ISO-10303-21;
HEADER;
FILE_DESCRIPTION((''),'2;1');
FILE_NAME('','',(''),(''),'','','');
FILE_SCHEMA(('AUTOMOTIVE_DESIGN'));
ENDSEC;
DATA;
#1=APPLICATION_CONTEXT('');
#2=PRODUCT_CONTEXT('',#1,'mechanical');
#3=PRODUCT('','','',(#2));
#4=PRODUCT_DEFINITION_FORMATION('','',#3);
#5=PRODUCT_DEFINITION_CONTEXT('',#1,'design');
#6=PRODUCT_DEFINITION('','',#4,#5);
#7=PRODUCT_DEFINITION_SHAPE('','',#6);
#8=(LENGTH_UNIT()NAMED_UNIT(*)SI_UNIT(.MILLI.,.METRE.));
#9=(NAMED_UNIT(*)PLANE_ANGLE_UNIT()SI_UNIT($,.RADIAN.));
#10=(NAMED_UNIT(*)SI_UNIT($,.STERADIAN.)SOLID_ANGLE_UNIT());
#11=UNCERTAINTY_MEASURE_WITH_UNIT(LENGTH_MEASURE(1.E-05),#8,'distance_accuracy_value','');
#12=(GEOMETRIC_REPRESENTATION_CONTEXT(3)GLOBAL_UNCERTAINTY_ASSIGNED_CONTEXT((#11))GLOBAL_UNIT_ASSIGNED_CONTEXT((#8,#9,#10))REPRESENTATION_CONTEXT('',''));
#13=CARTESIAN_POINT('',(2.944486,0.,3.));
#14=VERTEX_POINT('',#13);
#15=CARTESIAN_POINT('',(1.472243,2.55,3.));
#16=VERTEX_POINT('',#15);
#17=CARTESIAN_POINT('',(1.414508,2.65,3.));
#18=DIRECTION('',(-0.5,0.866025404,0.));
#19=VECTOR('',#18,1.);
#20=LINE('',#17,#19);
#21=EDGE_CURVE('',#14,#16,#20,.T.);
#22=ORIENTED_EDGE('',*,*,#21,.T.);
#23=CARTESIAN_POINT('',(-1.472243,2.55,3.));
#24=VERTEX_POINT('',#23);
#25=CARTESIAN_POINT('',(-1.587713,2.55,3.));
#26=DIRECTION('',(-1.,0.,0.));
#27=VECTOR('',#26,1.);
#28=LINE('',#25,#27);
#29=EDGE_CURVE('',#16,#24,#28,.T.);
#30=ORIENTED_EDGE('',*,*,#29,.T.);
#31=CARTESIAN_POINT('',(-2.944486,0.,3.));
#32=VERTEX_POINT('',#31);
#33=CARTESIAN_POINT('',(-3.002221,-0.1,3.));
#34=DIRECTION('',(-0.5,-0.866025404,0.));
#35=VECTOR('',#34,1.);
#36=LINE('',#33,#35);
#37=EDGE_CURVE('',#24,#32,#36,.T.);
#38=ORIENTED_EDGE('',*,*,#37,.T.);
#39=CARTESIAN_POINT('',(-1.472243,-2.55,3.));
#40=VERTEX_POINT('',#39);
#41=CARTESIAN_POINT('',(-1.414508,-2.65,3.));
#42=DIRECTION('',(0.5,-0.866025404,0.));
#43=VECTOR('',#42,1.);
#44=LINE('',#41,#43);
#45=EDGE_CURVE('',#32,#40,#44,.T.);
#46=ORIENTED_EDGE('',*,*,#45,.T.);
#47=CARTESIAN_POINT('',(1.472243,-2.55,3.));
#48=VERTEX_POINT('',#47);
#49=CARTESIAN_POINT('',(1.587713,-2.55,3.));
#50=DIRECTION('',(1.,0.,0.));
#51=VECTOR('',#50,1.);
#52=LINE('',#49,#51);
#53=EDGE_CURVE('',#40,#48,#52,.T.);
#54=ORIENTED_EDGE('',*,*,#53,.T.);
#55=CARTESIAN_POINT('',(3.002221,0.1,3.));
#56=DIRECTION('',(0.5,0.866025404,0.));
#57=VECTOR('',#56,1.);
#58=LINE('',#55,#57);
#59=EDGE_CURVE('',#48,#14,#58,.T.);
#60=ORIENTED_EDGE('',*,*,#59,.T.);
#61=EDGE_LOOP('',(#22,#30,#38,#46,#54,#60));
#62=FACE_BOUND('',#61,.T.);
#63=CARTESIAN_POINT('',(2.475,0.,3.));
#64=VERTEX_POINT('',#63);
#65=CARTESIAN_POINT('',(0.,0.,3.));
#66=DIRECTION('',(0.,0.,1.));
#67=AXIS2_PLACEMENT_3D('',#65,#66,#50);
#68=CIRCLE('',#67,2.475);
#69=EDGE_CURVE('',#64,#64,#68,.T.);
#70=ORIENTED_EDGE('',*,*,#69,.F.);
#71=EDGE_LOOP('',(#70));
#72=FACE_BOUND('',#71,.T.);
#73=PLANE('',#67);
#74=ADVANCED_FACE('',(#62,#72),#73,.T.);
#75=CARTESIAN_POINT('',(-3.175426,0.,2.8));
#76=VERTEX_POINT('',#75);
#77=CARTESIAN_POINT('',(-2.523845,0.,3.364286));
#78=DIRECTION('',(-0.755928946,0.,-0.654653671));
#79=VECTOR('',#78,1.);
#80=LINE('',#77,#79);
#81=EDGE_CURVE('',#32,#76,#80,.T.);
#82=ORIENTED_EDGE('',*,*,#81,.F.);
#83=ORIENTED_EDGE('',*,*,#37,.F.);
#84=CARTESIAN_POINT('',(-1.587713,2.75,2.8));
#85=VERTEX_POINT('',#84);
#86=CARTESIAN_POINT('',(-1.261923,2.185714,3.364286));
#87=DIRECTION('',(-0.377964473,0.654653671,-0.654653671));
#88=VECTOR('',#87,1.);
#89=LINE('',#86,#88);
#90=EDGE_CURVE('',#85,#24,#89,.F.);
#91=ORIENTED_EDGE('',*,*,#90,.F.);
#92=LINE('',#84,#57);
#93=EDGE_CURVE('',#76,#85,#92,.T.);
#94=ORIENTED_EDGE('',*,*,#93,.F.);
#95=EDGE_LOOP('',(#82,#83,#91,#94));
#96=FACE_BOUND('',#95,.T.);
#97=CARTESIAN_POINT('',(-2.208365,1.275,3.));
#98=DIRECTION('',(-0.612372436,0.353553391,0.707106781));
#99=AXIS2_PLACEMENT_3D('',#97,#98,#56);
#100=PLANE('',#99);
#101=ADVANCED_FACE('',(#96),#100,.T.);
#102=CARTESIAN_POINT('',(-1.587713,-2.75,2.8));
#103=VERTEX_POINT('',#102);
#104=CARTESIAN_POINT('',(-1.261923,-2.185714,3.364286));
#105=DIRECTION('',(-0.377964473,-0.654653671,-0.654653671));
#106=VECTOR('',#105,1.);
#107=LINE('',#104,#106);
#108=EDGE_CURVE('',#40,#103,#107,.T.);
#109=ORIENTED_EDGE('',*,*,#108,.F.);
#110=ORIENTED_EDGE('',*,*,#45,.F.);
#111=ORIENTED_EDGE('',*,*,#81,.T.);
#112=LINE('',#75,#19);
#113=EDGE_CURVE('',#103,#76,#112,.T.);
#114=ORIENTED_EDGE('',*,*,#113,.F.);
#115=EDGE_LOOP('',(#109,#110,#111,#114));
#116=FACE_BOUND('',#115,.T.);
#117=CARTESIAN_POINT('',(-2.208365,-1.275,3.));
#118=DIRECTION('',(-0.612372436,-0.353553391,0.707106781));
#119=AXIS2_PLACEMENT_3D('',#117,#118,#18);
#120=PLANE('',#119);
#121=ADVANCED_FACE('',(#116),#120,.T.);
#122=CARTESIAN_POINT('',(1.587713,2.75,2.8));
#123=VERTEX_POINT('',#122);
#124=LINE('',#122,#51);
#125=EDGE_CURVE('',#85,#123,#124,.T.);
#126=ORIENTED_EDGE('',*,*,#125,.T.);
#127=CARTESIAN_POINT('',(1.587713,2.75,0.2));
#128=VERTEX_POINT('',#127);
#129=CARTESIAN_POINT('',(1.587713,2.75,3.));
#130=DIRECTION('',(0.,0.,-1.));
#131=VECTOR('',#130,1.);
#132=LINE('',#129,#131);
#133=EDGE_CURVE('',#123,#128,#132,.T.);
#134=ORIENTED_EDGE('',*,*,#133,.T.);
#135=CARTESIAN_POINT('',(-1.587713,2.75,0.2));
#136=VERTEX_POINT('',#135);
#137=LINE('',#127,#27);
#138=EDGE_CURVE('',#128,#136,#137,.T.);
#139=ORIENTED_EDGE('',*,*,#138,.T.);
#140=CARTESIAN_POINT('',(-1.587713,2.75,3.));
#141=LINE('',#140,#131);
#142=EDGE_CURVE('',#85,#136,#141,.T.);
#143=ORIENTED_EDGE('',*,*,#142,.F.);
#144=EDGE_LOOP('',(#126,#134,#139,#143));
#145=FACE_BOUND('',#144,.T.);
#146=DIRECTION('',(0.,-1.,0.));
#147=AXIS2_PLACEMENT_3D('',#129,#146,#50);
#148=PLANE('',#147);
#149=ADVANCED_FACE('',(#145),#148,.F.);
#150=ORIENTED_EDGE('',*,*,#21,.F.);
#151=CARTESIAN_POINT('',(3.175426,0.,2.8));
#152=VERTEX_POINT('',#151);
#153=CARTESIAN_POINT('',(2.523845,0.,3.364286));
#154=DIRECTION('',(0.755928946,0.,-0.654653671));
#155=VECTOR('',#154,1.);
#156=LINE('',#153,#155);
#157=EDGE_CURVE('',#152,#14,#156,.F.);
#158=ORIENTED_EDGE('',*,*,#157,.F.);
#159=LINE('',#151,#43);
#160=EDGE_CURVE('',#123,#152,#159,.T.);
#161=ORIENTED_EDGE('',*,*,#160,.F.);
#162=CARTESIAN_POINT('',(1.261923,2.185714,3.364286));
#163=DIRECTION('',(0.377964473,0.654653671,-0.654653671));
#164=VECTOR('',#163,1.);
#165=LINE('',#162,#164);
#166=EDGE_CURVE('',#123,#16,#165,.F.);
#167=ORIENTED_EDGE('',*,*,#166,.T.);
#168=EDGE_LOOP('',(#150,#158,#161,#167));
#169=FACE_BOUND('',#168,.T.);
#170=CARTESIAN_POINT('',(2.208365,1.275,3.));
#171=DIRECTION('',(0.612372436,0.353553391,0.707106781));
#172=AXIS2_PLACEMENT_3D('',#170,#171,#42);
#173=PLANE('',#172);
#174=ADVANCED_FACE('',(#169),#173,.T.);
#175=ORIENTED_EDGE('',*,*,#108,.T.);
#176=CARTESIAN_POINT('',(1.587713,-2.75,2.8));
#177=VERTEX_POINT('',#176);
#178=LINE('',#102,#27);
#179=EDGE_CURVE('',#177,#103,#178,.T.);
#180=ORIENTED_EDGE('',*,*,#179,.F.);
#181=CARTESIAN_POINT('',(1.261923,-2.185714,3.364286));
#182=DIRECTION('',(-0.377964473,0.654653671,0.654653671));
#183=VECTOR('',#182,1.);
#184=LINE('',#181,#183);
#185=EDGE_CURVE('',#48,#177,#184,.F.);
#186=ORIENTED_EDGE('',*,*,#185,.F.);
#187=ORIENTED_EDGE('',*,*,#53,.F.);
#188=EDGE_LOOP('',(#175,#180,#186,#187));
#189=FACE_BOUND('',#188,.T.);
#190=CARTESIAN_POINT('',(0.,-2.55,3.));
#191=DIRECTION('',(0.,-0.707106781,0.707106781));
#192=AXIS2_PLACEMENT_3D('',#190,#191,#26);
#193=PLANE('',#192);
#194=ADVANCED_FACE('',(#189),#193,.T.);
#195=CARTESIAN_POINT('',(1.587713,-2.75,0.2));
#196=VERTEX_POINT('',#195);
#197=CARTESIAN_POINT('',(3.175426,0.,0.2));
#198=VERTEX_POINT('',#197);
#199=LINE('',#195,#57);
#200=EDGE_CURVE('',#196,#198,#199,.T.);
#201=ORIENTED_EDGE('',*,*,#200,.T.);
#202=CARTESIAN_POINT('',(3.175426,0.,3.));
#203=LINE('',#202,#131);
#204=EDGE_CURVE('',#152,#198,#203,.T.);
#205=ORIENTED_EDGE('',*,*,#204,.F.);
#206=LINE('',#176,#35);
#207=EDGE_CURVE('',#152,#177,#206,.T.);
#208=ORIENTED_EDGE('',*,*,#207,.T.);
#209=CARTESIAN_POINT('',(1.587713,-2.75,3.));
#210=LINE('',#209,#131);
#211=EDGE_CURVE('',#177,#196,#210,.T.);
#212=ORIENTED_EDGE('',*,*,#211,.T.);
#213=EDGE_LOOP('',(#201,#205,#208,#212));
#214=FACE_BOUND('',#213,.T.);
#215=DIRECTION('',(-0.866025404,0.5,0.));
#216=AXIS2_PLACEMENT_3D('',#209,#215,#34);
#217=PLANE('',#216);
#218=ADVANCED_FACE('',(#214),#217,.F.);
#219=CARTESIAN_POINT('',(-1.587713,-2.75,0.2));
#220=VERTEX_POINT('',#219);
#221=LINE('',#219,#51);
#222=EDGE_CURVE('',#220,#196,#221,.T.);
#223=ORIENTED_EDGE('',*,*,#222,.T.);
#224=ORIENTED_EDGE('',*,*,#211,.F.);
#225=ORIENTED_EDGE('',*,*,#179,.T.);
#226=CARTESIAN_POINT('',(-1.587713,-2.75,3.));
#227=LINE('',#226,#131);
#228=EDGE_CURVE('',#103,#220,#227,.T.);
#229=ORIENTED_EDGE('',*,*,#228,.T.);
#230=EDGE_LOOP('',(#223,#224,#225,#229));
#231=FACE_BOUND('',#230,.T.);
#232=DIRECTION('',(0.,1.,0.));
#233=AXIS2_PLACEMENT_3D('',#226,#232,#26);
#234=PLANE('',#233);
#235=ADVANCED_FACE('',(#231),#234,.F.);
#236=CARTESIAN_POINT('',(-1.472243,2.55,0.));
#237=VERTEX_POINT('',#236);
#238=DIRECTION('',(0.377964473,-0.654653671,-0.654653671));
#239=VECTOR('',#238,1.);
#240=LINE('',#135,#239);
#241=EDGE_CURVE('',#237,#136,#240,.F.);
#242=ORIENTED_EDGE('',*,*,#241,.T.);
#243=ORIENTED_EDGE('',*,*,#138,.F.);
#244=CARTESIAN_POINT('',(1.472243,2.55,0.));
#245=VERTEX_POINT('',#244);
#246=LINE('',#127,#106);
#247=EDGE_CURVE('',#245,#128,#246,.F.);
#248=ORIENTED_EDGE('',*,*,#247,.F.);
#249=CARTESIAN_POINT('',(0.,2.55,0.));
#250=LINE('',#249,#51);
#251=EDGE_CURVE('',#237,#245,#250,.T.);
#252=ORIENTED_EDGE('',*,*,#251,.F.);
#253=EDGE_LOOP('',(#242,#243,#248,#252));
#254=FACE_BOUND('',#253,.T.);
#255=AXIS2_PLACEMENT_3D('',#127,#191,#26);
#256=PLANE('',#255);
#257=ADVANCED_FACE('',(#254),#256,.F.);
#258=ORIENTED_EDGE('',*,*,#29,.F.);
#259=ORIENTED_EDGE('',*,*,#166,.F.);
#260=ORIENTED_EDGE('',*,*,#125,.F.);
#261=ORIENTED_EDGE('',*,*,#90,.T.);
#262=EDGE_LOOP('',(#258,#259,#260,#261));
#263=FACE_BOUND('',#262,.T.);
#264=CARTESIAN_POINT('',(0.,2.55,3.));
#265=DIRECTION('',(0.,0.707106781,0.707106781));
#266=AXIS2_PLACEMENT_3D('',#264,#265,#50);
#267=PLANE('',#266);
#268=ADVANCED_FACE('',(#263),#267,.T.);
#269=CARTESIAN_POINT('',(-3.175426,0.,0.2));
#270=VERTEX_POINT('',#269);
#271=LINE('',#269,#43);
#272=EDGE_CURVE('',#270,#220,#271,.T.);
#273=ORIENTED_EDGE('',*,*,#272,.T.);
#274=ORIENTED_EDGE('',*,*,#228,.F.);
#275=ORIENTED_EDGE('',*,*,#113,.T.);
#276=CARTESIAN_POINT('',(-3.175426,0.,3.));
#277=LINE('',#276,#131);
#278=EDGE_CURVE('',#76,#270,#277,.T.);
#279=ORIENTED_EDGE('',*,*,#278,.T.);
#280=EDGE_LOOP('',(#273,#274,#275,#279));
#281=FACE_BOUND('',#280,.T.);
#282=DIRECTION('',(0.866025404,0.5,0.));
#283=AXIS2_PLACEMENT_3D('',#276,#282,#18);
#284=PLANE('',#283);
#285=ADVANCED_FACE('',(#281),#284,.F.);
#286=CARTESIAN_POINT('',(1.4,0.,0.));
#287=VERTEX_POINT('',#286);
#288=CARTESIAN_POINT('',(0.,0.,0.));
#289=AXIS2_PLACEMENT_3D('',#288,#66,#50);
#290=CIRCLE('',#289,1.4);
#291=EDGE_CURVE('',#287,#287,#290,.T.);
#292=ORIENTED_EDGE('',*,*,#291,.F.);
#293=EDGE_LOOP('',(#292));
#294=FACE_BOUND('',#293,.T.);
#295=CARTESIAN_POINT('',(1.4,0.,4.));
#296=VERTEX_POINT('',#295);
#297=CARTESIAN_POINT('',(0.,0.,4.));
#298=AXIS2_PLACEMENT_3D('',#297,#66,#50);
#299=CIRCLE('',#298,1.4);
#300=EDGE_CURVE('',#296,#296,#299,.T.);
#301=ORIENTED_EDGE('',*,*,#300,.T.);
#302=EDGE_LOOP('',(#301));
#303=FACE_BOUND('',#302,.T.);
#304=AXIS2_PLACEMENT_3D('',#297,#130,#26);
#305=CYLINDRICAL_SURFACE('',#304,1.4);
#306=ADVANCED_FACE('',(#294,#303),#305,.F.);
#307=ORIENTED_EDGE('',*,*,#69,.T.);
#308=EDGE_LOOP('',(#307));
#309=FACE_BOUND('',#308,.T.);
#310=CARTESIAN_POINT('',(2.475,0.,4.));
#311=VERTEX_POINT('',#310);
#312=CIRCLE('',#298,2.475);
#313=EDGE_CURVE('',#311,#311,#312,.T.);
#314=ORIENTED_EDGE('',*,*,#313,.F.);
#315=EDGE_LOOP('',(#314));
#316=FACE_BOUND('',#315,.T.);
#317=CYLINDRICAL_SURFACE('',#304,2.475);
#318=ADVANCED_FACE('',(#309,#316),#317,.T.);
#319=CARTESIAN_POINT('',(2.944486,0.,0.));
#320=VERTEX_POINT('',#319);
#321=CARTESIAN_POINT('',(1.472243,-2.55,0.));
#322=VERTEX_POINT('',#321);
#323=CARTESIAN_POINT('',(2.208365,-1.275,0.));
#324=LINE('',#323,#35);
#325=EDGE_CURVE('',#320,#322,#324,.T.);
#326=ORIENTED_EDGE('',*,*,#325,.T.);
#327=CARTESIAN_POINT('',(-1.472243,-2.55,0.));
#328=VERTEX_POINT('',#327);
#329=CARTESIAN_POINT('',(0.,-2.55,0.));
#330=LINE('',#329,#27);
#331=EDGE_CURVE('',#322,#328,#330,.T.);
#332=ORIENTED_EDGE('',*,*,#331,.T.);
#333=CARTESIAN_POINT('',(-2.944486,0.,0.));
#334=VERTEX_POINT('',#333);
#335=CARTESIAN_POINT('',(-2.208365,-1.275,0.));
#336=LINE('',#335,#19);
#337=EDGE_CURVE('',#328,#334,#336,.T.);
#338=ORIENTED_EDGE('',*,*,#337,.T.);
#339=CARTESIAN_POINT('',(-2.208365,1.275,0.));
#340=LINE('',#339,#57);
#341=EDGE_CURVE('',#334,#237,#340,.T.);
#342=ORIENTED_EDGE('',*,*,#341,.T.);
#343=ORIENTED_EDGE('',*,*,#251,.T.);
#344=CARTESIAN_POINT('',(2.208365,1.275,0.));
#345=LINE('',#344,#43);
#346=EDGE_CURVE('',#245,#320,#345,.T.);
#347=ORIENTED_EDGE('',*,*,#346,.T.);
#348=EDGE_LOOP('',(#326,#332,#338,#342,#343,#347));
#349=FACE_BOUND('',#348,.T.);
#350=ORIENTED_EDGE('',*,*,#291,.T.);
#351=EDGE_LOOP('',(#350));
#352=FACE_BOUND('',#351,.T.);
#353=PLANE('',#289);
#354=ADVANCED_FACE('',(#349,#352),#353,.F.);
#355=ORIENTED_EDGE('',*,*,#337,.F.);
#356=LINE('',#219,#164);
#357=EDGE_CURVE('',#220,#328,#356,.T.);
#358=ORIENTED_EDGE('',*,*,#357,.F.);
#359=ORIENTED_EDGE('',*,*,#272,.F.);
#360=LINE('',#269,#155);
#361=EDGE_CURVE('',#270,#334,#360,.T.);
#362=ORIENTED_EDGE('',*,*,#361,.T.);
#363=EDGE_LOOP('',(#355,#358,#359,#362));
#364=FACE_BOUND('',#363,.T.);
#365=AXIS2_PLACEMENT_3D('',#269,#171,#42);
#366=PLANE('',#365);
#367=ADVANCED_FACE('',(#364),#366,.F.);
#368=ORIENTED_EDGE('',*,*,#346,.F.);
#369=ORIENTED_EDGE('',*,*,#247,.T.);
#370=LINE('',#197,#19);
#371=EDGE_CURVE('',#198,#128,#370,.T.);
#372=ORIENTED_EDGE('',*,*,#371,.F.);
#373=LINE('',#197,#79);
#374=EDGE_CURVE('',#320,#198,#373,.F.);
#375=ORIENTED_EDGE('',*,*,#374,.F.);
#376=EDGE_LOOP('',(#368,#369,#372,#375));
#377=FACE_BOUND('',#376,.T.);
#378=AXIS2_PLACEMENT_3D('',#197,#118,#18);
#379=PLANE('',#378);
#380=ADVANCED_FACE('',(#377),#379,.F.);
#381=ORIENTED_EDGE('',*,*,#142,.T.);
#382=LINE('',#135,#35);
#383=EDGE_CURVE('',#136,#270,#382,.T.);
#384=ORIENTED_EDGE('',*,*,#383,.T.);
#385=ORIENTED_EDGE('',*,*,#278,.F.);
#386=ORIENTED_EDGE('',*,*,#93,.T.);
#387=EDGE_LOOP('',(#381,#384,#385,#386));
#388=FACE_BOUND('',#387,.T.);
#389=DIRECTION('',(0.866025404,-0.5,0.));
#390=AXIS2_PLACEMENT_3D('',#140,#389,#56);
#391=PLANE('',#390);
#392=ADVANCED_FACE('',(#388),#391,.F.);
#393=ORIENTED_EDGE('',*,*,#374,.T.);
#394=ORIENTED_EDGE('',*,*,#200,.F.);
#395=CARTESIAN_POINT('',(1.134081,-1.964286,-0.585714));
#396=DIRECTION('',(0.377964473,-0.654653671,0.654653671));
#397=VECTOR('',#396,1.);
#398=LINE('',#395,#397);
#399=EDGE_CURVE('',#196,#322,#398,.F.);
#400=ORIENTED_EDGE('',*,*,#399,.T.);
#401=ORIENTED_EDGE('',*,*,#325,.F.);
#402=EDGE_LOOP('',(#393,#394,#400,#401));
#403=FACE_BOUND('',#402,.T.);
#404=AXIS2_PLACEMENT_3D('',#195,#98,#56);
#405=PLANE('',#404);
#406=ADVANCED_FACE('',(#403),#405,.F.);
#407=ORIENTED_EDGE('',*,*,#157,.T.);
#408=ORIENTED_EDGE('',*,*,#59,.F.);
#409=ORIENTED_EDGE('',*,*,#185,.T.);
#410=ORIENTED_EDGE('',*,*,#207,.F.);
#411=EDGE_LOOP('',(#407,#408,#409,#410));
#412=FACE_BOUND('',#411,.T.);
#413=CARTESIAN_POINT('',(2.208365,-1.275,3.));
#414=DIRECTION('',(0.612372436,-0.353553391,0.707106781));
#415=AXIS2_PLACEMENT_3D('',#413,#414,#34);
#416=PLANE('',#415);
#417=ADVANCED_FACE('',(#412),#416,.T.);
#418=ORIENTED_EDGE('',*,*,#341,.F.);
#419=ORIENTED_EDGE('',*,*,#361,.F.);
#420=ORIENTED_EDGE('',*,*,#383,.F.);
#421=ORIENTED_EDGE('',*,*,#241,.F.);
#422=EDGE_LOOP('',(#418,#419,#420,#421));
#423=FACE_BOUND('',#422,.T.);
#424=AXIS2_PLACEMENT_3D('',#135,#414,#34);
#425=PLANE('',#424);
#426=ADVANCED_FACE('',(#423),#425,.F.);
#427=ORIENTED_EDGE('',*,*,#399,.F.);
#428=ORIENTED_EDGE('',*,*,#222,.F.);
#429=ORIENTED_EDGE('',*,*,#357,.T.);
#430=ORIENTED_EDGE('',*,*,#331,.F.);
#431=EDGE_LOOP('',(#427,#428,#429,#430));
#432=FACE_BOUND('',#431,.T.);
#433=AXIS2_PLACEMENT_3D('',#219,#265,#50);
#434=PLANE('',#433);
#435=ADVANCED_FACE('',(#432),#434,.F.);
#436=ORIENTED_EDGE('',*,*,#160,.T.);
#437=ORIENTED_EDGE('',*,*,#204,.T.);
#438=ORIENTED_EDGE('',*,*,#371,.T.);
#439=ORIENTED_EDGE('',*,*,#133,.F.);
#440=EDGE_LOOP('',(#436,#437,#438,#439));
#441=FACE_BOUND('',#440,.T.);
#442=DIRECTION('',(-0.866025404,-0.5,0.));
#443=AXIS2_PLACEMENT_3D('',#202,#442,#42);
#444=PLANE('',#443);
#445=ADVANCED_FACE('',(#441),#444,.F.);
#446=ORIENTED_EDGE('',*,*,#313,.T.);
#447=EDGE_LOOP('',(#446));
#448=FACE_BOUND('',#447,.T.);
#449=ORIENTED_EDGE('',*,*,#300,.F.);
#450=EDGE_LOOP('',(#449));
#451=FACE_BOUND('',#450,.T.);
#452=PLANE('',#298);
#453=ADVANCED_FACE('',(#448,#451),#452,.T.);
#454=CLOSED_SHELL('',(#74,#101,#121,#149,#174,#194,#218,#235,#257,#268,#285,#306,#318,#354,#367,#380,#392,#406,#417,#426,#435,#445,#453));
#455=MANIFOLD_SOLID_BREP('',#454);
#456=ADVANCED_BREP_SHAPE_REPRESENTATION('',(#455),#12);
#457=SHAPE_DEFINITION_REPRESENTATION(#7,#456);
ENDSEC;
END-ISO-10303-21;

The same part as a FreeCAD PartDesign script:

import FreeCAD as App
import Part
import Sketcher
Q = App.Units.Quantity


def edges_at(feature, points):
    """Names of the edges that pass closest to the given points."""
    edges = feature.Shape.Edges
    near = lambda p: min(range(len(edges)), key=lambda i: edges[i].distToShape(Part.Vertex(*p))[0])
    return sorted({f"Edge{near(p) + 1}" for p in points})

doc = App.newDocument("Part")
body = doc.addObject("PartDesign::Body", "Body")

sketch1 = body.newObject("Sketcher::SketchObject", "Sketch")
sketch1.AttachmentSupport = (doc.getObject("XY_Plane"), [""])
sketch1.MapMode = "FlatFace"
sketch1.addGeometry([
    Part.LineSegment(App.Vector(3.2, 0, 0), App.Vector(1.6, 2.8, 0)),
    Part.LineSegment(App.Vector(1.6, 2.8, 0), App.Vector(-1.6, 2.8, 0)),
    Part.LineSegment(App.Vector(-1.6, 2.8, 0), App.Vector(-3.2, 0, 0)),
    Part.LineSegment(App.Vector(-3.2, 0, 0), App.Vector(-1.6, -2.8, 0)),
    Part.LineSegment(App.Vector(-1.6, -2.8, 0), App.Vector(1.6, -2.8, 0)),
    Part.LineSegment(App.Vector(1.6, -2.8, 0), App.Vector(3.2, 0, 0)),
], False)
sketch1.addConstraint([
    Sketcher.Constraint("Coincident", 0, 2, 1, 1),
    Sketcher.Constraint("Coincident", 1, 2, 2, 1),
    Sketcher.Constraint("Coincident", 2, 2, 3, 1),
    Sketcher.Constraint("Coincident", 3, 2, 4, 1),
    Sketcher.Constraint("Coincident", 4, 2, 5, 1),
    Sketcher.Constraint("Coincident", 5, 2, 0, 1),
    Sketcher.Constraint("Horizontal", 1),
    Sketcher.Constraint("Horizontal", 4),
    Sketcher.Constraint("Symmetric", 0, 2, 3, 2, -1, 1),
    Sketcher.Constraint("Symmetric", 2, 2, 5, 2, -1, 1),
    Sketcher.Constraint("PointOnObject", 2, 2, -1),
    Sketcher.Constraint("Parallel", 2, 5),
    Sketcher.Constraint("Vertical", 1, 2, 3, 2),
    Sketcher.Constraint("Angle", 0, Q("120 deg")),
    Sketcher.Constraint("DistanceY", 3, 2, 1, 2, Q("5.5 mm")),
    Sketcher.Constraint("DistanceX", 1, 2, 1, 1, Q("3.175426 mm")),
])
pad1 = body.newObject("PartDesign::Pad", "Pad")
pad1.Profile = sketch1
pad1.Length = 3
doc.recompute()

chamfer = body.newObject("PartDesign::Chamfer", "Chamfer")
chamfer.Base = (pad1, edges_at(pad1, [
    (0, 2.75, 3),
    (-2.382, 1.375, 3),
    (-2.382, -1.375, 3),
    (0, -2.75, 3),
    (2.382, -1.375, 3),
    (0, -2.75, 0),
    (-2.382, -1.375, 0),
    (-2.382, 1.375, 0),
    (0, 2.75, 0),
    (2.382, 1.375, 0),
    (2.382, -1.375, 0),
    (2.382, 1.375, 3),
]))
chamfer.Size = 0.2

sketch2 = body.newObject("Sketcher::SketchObject", "Sketch001")
sketch2.AttachmentSupport = (doc.getObject("XY_Plane"), [""])
sketch2.MapMode = "FlatFace"
sketch2.AttachmentOffset = App.Placement(App.Vector(0, 0, 3), App.Rotation())
sketch2.addGeometry(Part.Circle(App.Vector(0, 0, 0), App.Vector(0, 0, 1), 2.5), False)
sketch2.addConstraint([
    Sketcher.Constraint("Coincident", 0, 3, -1, 1),
    Sketcher.Constraint("Diameter", 0, Q("4.95 mm")),
])
pad2 = body.newObject("PartDesign::Pad", "Pad001")
pad2.Profile = sketch2
pad2.Length = 1

sketch3 = body.newObject("Sketcher::SketchObject", "Sketch002")
sketch3.AttachmentSupport = (doc.getObject("XY_Plane"), [""])
sketch3.MapMode = "FlatFace"
sketch3.addGeometry(Part.Circle(App.Vector(0, 0, 0), App.Vector(0, 0, 1), 1.4), False)
sketch3.addConstraint([
    Sketcher.Constraint("Coincident", 0, 3, -1, 1),
    Sketcher.Constraint("Diameter", 0, Q("2.8 mm")),
])
pocket1 = body.newObject("PartDesign::Pocket", "Pocket")
pocket1.Profile = sketch3
pocket1.Type = "ThroughAll"
pocket1.Reversed = True

doc.recompute()
